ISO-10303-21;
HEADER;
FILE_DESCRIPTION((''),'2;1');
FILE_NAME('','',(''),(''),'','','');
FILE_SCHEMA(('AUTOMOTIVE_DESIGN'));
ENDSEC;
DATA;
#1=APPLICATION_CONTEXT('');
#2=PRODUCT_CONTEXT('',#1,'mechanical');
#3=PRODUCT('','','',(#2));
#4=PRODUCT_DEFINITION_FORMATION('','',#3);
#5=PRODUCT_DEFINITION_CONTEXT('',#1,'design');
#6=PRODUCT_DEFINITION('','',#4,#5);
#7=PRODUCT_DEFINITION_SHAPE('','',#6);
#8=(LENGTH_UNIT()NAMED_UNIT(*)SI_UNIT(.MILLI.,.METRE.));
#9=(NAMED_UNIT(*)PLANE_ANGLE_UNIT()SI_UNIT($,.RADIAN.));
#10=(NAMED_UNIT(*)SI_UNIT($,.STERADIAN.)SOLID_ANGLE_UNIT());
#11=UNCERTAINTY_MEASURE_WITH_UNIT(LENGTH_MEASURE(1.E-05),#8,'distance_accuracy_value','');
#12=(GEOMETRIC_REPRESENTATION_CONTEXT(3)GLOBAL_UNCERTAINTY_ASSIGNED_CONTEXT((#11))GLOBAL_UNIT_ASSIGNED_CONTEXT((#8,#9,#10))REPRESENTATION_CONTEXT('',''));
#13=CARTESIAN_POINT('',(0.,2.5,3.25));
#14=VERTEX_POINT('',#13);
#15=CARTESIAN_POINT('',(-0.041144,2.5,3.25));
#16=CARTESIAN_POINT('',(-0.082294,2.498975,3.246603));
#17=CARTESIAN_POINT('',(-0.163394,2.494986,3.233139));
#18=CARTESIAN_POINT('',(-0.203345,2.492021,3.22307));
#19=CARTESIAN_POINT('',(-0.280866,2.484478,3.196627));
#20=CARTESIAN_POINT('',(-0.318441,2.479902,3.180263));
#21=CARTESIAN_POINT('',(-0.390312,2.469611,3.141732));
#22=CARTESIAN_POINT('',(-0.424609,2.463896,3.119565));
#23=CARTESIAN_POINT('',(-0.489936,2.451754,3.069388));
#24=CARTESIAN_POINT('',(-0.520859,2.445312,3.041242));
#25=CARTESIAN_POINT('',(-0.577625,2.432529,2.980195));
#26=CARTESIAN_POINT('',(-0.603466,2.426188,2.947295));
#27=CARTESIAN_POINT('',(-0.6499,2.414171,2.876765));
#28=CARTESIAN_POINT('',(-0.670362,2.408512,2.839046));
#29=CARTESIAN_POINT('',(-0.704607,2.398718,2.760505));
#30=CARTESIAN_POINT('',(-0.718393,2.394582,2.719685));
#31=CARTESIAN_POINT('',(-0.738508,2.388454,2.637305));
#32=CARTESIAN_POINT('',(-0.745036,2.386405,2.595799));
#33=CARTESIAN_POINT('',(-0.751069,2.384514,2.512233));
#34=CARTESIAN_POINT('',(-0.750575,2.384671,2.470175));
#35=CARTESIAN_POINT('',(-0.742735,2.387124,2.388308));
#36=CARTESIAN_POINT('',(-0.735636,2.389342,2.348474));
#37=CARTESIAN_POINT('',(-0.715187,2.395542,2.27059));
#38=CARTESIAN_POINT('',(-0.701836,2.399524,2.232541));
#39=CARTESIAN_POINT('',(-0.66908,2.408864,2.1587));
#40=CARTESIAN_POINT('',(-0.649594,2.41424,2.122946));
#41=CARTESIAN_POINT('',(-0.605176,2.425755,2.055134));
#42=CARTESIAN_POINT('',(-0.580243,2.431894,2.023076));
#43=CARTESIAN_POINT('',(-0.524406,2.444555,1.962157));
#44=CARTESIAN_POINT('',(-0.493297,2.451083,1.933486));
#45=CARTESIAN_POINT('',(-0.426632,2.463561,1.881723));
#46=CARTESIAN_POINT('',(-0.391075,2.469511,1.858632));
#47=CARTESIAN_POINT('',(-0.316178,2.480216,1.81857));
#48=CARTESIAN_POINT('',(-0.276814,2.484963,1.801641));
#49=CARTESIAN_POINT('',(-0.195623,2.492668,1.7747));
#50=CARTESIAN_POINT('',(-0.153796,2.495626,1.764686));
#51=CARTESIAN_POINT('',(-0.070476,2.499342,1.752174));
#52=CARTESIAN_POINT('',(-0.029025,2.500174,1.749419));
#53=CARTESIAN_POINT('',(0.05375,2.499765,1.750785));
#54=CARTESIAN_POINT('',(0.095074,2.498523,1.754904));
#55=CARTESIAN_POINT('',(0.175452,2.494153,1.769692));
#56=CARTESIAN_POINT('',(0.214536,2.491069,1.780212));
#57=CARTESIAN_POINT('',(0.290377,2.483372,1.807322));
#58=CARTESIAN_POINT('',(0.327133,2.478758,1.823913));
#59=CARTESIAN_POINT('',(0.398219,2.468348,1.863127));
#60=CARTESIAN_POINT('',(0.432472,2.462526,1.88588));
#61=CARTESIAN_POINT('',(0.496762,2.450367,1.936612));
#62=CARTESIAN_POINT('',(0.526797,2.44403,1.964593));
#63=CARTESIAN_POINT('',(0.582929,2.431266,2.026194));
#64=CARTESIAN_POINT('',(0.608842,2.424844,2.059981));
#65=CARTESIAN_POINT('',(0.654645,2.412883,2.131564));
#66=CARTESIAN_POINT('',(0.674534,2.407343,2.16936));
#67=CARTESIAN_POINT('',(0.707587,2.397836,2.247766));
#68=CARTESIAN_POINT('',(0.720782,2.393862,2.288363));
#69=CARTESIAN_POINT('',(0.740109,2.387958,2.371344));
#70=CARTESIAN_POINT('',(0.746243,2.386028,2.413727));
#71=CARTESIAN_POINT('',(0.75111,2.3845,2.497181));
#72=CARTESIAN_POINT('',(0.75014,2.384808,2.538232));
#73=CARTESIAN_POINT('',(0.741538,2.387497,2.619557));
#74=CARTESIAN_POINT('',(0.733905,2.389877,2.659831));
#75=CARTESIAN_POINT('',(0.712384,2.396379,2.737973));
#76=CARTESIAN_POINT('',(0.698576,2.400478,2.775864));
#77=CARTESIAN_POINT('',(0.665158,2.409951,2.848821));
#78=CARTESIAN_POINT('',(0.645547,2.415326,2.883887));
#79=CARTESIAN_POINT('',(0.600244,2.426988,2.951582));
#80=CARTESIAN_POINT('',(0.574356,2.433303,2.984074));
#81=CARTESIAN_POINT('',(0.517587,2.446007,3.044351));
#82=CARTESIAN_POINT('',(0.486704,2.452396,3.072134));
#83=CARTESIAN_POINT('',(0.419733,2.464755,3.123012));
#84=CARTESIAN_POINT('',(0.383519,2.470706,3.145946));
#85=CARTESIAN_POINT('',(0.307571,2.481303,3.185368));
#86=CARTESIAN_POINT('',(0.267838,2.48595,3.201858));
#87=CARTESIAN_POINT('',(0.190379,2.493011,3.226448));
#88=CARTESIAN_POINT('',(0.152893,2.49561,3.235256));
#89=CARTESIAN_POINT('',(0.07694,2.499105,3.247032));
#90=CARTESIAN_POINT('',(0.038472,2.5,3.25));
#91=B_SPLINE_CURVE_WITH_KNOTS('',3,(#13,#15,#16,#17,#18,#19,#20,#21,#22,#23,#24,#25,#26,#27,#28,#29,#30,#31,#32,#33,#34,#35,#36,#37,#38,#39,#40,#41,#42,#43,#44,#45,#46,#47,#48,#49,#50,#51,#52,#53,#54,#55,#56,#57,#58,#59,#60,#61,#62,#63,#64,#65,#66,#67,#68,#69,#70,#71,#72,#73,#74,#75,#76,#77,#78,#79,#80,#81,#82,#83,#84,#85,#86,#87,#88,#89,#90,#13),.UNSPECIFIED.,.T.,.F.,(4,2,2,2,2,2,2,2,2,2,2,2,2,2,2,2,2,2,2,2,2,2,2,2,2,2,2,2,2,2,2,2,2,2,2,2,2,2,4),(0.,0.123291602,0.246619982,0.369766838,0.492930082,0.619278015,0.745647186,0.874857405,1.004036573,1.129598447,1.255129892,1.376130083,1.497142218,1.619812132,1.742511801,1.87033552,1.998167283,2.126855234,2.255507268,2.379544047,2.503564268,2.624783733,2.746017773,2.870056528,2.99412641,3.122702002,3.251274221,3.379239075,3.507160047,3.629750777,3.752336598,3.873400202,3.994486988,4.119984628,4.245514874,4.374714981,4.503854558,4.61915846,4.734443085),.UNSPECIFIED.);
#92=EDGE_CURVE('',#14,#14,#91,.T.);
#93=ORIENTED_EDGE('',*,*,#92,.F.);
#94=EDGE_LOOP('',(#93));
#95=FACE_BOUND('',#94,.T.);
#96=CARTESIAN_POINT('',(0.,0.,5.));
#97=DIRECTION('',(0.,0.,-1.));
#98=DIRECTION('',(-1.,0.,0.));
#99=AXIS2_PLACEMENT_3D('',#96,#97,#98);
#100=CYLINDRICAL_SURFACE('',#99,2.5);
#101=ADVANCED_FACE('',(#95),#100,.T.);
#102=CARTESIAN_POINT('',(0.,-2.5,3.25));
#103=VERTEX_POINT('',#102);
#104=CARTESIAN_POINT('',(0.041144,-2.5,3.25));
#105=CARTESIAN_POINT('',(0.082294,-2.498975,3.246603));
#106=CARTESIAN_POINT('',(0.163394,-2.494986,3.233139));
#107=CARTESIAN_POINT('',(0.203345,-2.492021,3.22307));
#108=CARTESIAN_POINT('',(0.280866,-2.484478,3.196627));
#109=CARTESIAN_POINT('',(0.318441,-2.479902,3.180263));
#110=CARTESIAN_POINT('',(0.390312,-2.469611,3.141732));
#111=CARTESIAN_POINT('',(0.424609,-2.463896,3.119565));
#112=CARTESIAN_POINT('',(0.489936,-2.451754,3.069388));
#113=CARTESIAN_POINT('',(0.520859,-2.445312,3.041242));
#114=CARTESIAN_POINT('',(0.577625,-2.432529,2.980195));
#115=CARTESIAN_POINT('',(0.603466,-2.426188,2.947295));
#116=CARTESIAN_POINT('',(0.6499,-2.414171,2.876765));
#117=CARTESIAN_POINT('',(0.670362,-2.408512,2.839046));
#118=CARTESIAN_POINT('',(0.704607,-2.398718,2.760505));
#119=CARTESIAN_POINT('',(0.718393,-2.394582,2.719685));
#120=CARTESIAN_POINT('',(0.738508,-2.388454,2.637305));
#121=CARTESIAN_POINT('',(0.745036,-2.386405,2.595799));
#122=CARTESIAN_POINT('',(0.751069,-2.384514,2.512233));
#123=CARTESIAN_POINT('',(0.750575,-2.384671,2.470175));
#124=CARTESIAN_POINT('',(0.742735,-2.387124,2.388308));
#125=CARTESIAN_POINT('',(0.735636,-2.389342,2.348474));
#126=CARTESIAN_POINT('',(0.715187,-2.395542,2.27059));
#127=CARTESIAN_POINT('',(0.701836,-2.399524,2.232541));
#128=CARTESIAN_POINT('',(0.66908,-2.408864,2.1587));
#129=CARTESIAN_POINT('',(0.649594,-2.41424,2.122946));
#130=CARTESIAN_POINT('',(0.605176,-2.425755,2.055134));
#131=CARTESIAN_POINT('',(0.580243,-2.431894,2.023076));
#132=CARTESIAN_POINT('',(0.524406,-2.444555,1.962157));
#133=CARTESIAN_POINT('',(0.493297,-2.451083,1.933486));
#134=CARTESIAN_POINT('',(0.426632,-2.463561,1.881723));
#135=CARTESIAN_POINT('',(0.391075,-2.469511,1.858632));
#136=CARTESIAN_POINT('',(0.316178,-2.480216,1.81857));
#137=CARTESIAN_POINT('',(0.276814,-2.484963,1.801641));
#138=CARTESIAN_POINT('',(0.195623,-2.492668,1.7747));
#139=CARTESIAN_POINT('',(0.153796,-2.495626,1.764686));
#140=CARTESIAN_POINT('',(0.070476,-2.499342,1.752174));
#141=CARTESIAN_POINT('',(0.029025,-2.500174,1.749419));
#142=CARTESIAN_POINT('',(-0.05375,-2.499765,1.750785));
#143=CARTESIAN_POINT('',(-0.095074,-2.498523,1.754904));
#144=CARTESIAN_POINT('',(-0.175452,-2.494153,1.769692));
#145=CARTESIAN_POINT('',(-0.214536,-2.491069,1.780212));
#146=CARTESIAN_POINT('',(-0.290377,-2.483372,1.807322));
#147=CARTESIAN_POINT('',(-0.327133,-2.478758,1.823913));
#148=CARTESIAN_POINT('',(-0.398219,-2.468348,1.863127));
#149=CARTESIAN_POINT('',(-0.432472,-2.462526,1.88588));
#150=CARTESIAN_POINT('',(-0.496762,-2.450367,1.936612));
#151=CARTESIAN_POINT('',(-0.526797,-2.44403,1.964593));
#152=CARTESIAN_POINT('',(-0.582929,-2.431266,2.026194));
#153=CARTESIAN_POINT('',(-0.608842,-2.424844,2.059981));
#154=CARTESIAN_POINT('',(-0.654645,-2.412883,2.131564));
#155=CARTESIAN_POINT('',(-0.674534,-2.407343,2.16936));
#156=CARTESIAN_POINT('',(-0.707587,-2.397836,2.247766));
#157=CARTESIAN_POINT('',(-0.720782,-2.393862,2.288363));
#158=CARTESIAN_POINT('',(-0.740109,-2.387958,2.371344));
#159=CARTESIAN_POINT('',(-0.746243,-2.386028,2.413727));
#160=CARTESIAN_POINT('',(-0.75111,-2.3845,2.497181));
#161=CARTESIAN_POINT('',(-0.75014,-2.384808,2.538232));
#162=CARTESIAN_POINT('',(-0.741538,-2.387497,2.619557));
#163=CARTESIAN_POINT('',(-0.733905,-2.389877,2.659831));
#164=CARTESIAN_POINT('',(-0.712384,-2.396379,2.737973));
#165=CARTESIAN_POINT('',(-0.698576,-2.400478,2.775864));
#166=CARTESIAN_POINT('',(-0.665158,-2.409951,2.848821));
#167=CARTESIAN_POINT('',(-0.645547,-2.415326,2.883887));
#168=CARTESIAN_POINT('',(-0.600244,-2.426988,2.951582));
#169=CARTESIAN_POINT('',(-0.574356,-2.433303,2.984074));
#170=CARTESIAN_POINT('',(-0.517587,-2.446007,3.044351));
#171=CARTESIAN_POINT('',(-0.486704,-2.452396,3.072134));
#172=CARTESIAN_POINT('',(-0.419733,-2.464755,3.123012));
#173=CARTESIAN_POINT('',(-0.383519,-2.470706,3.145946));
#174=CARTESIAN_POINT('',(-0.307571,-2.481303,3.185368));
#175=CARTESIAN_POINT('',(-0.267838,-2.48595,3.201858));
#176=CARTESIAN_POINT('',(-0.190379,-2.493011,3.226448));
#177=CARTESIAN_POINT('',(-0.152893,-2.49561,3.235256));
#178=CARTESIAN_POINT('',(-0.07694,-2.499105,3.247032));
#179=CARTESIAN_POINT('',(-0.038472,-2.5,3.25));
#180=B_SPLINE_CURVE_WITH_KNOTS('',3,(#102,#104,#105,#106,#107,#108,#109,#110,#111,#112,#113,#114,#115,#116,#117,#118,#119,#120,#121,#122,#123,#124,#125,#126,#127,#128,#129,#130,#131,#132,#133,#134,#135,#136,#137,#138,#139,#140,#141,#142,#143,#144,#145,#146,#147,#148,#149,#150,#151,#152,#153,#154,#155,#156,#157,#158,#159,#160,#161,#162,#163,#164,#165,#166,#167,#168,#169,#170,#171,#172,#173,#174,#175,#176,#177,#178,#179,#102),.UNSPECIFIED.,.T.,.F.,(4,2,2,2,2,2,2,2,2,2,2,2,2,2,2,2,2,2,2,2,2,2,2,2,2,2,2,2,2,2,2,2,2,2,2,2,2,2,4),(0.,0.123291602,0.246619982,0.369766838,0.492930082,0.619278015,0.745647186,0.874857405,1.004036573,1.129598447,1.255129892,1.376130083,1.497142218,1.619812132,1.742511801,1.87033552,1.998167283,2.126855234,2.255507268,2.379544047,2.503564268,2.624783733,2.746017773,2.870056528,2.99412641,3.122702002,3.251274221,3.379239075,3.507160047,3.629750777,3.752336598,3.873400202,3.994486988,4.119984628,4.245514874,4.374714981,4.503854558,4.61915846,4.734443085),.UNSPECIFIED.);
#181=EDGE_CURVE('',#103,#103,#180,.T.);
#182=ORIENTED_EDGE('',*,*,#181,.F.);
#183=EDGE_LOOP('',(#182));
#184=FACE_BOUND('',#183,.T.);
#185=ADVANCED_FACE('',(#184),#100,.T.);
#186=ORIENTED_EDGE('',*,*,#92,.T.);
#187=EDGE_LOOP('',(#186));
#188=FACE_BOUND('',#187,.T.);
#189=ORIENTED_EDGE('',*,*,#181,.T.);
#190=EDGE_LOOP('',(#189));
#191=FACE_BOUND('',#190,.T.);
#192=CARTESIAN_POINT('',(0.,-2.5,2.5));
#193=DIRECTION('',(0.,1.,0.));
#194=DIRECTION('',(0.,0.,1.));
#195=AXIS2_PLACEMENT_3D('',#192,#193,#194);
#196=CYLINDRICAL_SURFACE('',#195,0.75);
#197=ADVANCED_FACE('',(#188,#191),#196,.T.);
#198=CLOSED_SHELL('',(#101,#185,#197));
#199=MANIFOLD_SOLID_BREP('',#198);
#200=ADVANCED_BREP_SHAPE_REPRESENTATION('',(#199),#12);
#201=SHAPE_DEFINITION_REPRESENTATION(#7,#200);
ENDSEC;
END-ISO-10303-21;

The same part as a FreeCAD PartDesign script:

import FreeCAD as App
import Part
import Sketcher

V = App.Vector


def add_polygon(sketch, points):
    """Adds a closed chain of lines whose ends are joined by coincident constraints."""
    first, n = sketch.GeometryCount, len(points)
    for a, b in zip(points, points[1:] + points[:1]):
        sketch.addGeometry(Part.LineSegment(App.Vector(*a, 0), App.Vector(*b, 0)), False)
    for i in range(n):
        sketch.addConstraint(Sketcher.Constraint("Coincident", first + i, 2, first + (i + 1) % n, 1))

doc = App.newDocument("Part")
body = doc.addObject("PartDesign::Body", "Body")

# Sketch on XY plane
sketch1 = body.newObject("Sketcher::SketchObject", "Sketch")
sketch1.AttachmentSupport = (doc.getObject("XY_Plane"), [""])
sketch1.MapMode = "FlatFace"
sketch1.addGeometry(Part.Circle(V(0, 0, 0), V(0, 0, 1), 2.5), False)
sketch1.addConstraint([
    Sketcher.Constraint("Coincident", 0, 3, -1, 1),
    Sketcher.Constraint("Diameter", 0, 5.0),
])
pad1 = body.newObject("PartDesign::Pad", "Pad")
pad1.Profile = sketch1
pad1.Length = 5

# Sketch on XZ plane
sketch2 = body.newObject("Sketcher::SketchObject", "Sketch001")
sketch2.AttachmentSupport = (doc.getObject("XZ_Plane"), [""])
sketch2.MapMode = "FlatFace"
add_polygon(sketch2, [(-4.4, -1.9), (-4.4, 6.9), (4.4, 6.9), (4.4, -1.9)])  # lines 0-3
sketch2.addGeometry(Part.Circle(V(0, 2.5, 0), V(0, 0, 1), 0.8), False)  # 4
sketch2.addConstraint([
    Sketcher.Constraint("Vertical", 0),
    Sketcher.Constraint("Horizontal", 1),
    Sketcher.Constraint("Vertical", 2),
    Sketcher.Constraint("Horizontal", 3),
    Sketcher.Constraint("PointOnObject", 4, 3, -2),
    Sketcher.Constraint("Equal", 3, 0),
    Sketcher.Constraint("Diameter", 4, 1.5),
    Sketcher.Constraint("DistanceY", -1, 1, 4, 3, 2.5),
    Sketcher.Constraint("DistanceX", 1, 1, 1, 2, 8.732),
    Sketcher.Constraint("DistanceX", 0, 2, -1, 1, 4.366),
    Sketcher.Constraint("DistanceY", -1, 1, 0, 2, 6.866),
])
pocket1 = body.newObject("PartDesign::Pocket", "Pocket")
pocket1.Profile = sketch2
pocket1.Length = 5
pocket1.Midplane = True

doc.recompute()
